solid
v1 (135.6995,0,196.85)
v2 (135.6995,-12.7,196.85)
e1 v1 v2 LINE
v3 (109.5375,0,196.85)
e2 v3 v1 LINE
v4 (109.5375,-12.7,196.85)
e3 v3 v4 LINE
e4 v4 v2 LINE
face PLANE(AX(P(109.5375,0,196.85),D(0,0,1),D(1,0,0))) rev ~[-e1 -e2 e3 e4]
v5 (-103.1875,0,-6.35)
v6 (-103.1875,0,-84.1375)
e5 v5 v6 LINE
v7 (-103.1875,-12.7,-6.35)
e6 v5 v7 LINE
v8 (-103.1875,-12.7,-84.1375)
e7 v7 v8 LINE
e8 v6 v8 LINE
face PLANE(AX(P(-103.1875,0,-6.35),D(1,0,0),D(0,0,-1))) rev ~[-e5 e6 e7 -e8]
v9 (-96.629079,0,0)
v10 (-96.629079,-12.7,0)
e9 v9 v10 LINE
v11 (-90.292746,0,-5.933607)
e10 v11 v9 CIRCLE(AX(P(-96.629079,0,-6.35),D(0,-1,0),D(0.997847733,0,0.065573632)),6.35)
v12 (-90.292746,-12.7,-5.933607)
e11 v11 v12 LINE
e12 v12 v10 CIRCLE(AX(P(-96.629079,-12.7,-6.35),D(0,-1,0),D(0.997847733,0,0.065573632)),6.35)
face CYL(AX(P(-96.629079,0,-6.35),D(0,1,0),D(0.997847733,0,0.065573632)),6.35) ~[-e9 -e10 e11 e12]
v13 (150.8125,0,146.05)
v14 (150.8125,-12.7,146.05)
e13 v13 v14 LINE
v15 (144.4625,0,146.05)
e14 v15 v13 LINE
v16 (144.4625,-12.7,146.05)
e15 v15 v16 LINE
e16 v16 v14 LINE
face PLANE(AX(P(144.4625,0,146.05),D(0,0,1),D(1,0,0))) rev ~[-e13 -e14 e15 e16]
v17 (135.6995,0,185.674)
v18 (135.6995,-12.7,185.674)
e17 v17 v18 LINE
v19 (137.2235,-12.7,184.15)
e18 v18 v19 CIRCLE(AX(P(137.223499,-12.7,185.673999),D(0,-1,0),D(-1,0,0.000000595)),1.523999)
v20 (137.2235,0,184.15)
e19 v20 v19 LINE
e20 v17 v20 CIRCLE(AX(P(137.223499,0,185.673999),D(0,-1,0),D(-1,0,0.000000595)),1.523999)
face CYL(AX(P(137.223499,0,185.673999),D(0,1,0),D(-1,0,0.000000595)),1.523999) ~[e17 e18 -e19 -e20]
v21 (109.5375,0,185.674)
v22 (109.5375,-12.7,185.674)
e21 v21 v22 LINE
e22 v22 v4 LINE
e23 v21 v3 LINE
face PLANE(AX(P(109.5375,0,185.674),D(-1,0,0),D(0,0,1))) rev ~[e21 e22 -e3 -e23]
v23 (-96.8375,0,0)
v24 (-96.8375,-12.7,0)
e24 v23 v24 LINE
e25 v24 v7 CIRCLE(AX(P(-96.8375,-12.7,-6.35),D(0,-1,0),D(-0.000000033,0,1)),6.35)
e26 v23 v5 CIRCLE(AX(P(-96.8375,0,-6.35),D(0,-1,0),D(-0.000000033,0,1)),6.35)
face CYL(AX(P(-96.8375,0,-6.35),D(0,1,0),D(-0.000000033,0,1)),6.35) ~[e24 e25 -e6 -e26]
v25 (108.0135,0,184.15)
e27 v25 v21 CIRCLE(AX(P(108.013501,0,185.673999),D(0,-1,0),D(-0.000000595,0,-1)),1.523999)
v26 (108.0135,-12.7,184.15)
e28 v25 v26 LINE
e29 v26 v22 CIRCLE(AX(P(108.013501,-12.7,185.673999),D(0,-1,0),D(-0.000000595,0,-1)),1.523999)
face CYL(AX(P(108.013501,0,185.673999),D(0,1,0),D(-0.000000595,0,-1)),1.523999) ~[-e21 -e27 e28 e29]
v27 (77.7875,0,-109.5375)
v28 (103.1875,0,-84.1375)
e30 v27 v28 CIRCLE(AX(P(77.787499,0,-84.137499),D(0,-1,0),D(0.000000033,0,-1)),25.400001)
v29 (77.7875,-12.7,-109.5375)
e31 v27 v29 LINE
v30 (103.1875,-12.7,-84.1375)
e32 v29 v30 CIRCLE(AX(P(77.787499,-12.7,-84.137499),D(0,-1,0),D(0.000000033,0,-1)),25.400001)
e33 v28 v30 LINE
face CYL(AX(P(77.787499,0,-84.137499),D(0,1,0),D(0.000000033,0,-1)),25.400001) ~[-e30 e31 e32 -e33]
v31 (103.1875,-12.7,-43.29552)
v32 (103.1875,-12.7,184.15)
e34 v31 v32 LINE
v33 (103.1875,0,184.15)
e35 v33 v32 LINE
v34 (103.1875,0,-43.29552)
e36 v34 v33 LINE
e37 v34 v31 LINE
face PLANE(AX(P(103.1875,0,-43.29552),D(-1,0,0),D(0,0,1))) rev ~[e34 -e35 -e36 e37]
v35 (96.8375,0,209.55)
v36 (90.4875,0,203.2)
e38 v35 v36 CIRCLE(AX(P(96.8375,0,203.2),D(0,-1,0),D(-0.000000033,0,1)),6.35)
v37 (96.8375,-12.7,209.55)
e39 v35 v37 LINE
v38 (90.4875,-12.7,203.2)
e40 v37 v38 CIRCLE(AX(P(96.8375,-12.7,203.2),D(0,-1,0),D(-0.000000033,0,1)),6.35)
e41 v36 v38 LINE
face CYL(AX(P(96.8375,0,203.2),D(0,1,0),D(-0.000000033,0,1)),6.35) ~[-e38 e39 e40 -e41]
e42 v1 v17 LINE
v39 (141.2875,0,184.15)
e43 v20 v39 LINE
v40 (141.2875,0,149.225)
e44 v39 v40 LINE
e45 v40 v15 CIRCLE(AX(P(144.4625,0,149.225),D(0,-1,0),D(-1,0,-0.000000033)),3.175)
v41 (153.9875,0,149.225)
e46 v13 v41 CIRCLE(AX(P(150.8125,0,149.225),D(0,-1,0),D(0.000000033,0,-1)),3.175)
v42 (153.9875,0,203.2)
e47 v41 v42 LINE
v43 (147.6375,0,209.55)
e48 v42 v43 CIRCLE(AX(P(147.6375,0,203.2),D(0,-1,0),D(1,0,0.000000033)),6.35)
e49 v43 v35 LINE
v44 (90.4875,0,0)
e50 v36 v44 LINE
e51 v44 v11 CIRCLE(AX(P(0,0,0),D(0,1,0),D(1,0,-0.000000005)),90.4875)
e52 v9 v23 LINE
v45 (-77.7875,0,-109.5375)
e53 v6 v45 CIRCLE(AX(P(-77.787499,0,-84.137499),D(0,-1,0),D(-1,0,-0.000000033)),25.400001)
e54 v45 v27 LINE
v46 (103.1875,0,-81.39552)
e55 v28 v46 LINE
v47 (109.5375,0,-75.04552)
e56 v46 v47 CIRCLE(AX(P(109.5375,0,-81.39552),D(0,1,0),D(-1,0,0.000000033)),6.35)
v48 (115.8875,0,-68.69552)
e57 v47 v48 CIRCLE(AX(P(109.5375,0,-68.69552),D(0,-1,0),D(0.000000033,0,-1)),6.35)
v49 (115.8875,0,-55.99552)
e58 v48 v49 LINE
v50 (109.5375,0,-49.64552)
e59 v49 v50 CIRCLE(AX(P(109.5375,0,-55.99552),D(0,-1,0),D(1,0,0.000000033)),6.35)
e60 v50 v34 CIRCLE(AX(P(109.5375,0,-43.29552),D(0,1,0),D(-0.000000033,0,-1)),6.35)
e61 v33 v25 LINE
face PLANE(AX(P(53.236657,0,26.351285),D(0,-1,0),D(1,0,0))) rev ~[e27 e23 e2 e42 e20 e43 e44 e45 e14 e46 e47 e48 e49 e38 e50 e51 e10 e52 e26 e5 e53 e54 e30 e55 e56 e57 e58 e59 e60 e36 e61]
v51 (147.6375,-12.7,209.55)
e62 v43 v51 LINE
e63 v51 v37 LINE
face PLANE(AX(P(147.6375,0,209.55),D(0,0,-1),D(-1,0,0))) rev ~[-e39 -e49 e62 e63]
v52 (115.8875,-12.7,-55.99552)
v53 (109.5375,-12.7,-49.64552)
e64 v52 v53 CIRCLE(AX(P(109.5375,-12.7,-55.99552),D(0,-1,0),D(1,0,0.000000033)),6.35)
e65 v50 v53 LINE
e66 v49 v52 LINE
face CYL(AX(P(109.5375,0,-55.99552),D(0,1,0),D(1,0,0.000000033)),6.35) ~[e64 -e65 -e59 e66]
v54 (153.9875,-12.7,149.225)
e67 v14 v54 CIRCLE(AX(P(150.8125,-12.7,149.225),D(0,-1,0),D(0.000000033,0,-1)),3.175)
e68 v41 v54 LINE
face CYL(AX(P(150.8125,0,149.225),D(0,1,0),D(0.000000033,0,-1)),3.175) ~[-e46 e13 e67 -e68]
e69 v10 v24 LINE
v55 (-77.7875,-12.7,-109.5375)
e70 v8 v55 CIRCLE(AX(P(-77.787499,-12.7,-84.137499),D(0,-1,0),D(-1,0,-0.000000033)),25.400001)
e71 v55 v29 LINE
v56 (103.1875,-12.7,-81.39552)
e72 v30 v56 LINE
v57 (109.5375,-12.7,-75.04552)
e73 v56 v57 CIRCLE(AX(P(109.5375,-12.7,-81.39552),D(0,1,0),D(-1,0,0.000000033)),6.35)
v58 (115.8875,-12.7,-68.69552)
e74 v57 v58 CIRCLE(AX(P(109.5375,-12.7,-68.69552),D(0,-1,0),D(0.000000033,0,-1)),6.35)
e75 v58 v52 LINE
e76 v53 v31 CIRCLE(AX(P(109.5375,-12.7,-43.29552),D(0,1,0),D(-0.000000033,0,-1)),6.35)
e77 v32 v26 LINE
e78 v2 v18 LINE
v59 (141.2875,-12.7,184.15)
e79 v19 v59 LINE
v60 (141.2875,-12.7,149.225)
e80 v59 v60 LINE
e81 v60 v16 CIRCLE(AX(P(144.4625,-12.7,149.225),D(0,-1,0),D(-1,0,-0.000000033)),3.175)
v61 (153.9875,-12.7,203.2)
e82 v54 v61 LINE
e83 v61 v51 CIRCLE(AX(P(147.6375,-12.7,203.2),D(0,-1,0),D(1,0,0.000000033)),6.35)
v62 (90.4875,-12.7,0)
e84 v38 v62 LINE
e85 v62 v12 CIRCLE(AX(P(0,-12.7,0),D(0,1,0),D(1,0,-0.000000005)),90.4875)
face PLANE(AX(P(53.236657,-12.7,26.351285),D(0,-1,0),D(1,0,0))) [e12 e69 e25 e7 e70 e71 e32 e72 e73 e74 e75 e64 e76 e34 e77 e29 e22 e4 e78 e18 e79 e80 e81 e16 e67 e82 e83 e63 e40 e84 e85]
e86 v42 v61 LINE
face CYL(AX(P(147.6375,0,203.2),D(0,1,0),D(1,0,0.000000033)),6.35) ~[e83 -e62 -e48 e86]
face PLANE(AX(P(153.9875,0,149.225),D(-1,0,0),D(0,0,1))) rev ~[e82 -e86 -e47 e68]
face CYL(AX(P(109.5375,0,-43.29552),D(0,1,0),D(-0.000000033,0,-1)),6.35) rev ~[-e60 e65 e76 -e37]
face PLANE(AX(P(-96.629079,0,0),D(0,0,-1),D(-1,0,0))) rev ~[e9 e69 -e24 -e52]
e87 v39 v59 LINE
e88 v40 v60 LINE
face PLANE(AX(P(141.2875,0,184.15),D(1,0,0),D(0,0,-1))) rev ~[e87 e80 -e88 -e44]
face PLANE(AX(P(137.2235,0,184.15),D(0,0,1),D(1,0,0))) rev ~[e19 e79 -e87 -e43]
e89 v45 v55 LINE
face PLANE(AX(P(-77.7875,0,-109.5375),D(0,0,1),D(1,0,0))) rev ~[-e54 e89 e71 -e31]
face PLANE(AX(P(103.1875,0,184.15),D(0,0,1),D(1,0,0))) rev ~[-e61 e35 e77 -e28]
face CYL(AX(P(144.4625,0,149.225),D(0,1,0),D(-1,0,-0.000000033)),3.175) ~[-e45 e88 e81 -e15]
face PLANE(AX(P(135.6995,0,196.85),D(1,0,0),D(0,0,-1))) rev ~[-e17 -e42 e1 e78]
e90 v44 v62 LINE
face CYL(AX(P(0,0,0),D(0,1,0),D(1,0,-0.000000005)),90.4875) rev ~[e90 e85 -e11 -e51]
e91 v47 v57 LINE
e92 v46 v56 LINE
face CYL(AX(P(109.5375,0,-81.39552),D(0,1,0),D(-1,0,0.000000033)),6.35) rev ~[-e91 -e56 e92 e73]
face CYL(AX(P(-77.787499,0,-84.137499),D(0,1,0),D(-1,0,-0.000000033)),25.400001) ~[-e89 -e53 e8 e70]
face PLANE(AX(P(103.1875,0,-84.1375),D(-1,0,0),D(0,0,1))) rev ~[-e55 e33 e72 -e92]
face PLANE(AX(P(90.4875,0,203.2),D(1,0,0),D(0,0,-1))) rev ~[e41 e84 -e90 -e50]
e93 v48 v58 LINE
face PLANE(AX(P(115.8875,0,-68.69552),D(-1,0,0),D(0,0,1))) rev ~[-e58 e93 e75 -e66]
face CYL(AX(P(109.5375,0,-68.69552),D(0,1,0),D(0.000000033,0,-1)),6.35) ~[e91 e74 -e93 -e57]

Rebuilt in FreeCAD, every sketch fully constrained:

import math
import FreeCAD as App
import Part
import Sketcher
Q = App.Units.Quantity

doc = App.newDocument("Part")
params = doc.addObject("Spreadsheet::Sheet", "Params")
for row, (alias, value) in enumerate([
    ("sketch1_radius", "1 in"),
    ("sketch1_width", "2 in"),
    ("sketch1_height", "8 in"),
    ("sketch1_radius2", "0.25 in"),
    ("sketch1_radius3", "0.06 in"),
    ("pad1_length", "0.5 in"),
], start=1):
    params.set(f"A{row}", alias)
    params.set(f"B{row}", "=" + value)
    params.setAlias(f"B{row}", alias)

body = doc.addObject("PartDesign::Body", "Body")

# Sketch on XZ plane
sketch1 = body.newObject("Sketcher::SketchObject", "Sketch")
sketch1.AttachmentSupport = (doc.getObject("XZ_Plane"), [""])
sketch1.MapMode = "FlatFace"
sketch1.addGeometry([
    Part.ArcOfCircle(Part.Circle(App.Vector(0, 0, 0), App.Vector(0, 0, 1), 90.49), math.radians(-176), math.radians(0)),  # 0
    Part.ArcOfCircle(Part.Circle(App.Vector(-96.63, -6.35, 0), App.Vector(0, 0, 1), 6.35), math.radians(4), math.radians(90)),  # 1
    Part.LineSegment(App.Vector(-96.63, 0, 0), App.Vector(-96.84, 0, 0)),  # 2
    Part.ArcOfCircle(Part.Circle(App.Vector(-96.84, -6.35, 0), App.Vector(0, 0, 1), 6.35), math.radians(90), math.radians(180)),  # 3
    Part.LineSegment(App.Vector(-103.19, -6.35, 0), App.Vector(-103.19, -84.14, 0)),  # 4
    Part.ArcOfCircle(Part.Circle(App.Vector(-77.79, -84.14, 0), App.Vector(0, 0, 1), 25.4), math.radians(-180), math.radians(-90)),  # 5
    Part.LineSegment(App.Vector(-77.79, -109.54, 0), App.Vector(77.79, -109.54, 0)),  # 6
    Part.ArcOfCircle(Part.Circle(App.Vector(77.79, -84.14, 0), App.Vector(0, 0, 1), 25.4), math.radians(-90), math.radians(0)),  # 7
    Part.LineSegment(App.Vector(103.19, -84.14, 0), App.Vector(103.19, -81.4, 0)),  # 8
    Part.ArcOfCircle(Part.Circle(App.Vector(109.54, -81.4, 0), App.Vector(0, 0, 1), 6.35), math.radians(90), math.radians(180)),  # 9
    Part.ArcOfCircle(Part.Circle(App.Vector(109.54, -68.7, 0), App.Vector(0, 0, 1), 6.35), math.radians(-90), math.radians(0)),  # 10
    Part.LineSegment(App.Vector(115.89, -68.7, 0), App.Vector(115.89, -56, 0)),  # 11
    Part.ArcOfCircle(Part.Circle(App.Vector(109.54, -56, 0), App.Vector(0, 0, 1), 6.35), math.radians(0), math.radians(90)),  # 12
    Part.ArcOfCircle(Part.Circle(App.Vector(109.54, -43.3, 0), App.Vector(0, 0, 1), 6.35), math.radians(-180), math.radians(-90)),  # 13
    Part.LineSegment(App.Vector(103.19, -43.3, 0), App.Vector(103.19, 184.15, 0)),  # 14
    Part.LineSegment(App.Vector(103.19, 184.15, 0), App.Vector(108.01, 184.15, 0)),  # 15
    Part.ArcOfCircle(Part.Circle(App.Vector(108.01, 185.67, 0), App.Vector(0, 0, 1), 1.52), math.radians(-90), math.radians(0)),  # 16
    Part.LineSegment(App.Vector(109.54, 185.67, 0), App.Vector(109.54, 196.85, 0)),  # 17
    Part.LineSegment(App.Vector(109.54, 196.85, 0), App.Vector(135.7, 196.85, 0)),  # 18
    Part.LineSegment(App.Vector(135.7, 196.85, 0), App.Vector(135.7, 185.67, 0)),  # 19
    Part.ArcOfCircle(Part.Circle(App.Vector(137.22, 185.67, 0), App.Vector(0, 0, 1), 1.52), math.radians(180), math.radians(270)),  # 20
    Part.LineSegment(App.Vector(137.22, 184.15, 0), App.Vector(141.29, 184.15, 0)),  # 21
    Part.LineSegment(App.Vector(141.29, 184.15, 0), App.Vector(141.29, 149.22, 0)),  # 22
    Part.ArcOfCircle(Part.Circle(App.Vector(144.46, 149.23, 0), App.Vector(0, 0, 1), 3.18), math.radians(-180), math.radians(-90)),  # 23
    Part.LineSegment(App.Vector(144.46, 146.05, 0), App.Vector(150.81, 146.05, 0)),  # 24
    Part.ArcOfCircle(Part.Circle(App.Vector(150.81, 149.23, 0), App.Vector(0, 0, 1), 3.18), math.radians(-90), math.radians(0)),  # 25
    Part.LineSegment(App.Vector(153.99, 149.22, 0), App.Vector(153.99, 203.2, 0)),  # 26
    Part.ArcOfCircle(Part.Circle(App.Vector(147.64, 203.2, 0), App.Vector(0, 0, 1), 6.35), math.radians(0), math.radians(90)),  # 27
    Part.LineSegment(App.Vector(147.64, 209.55, 0), App.Vector(96.84, 209.55, 0)),  # 28
    Part.ArcOfCircle(Part.Circle(App.Vector(96.84, 203.2, 0), App.Vector(0, 0, 1), 6.35), math.radians(90), math.radians(180)),  # 29
    Part.LineSegment(App.Vector(90.49, 203.2, 0), App.Vector(90.49, 0, 0)),  # 30
], False)
sketch1.addConstraint([
    Sketcher.Constraint("Tangent", 0, 1, 1, 1),
    Sketcher.Constraint("Tangent", 1, 2, 2, 1),
    Sketcher.Constraint("Tangent", 2, 2, 3, 1),
    Sketcher.Constraint("Tangent", 3, 2, 4, 1),
    Sketcher.Constraint("Tangent", 4, 2, 5, 1),
    Sketcher.Constraint("Tangent", 5, 2, 6, 1),
    Sketcher.Constraint("Tangent", 6, 2, 7, 1),
    Sketcher.Constraint("Tangent", 7, 2, 8, 1),
    Sketcher.Constraint("Tangent", 8, 2, 9, 2),
    Sketcher.Constraint("Tangent", 9, 1, 10, 1),
    Sketcher.Constraint("Tangent", 10, 2, 11, 1),
    Sketcher.Constraint("Tangent", 11, 2, 12, 1),
    Sketcher.Constraint("Tangent", 12, 2, 13, 2),
    Sketcher.Constraint("Tangent", 13, 1, 14, 1),
    Sketcher.Constraint("Coincident", 14, 2, 15, 1),
    Sketcher.Constraint("Tangent", 15, 2, 16, 1),
    Sketcher.Constraint("Tangent", 16, 2, 17, 1),
    Sketcher.Constraint("Coincident", 17, 2, 18, 1),
    Sketcher.Constraint("Coincident", 18, 2, 19, 1),
    Sketcher.Constraint("Tangent", 19, 2, 20, 1),
    Sketcher.Constraint("Tangent", 20, 2, 21, 1),
    Sketcher.Constraint("Coincident", 21, 2, 22, 1),
    Sketcher.Constraint("Tangent", 22, 2, 23, 1),
    Sketcher.Constraint("Tangent", 23, 2, 24, 1),
    Sketcher.Constraint("Tangent", 24, 2, 25, 1),
    Sketcher.Constraint("Tangent", 25, 2, 26, 1),
    Sketcher.Constraint("Tangent", 26, 2, 27, 1),
    Sketcher.Constraint("Tangent", 27, 2, 28, 1),
    Sketcher.Constraint("Tangent", 28, 2, 29, 1),
    Sketcher.Constraint("Tangent", 29, 2, 30, 1),
    Sketcher.Constraint("Tangent", 30, 2, 0, 2),
    Sketcher.Constraint("Horizontal", 2),
    Sketcher.Constraint("Vertical", 4),
    Sketcher.Constraint("Horizontal", 6),
    Sketcher.Constraint("Vertical", 8),
    Sketcher.Constraint("Vertical", 11),
    Sketcher.Constraint("Vertical", 14),
    Sketcher.Constraint("Horizontal", 15),
    Sketcher.Constraint("Vertical", 17),
    Sketcher.Constraint("Horizontal", 18),
    Sketcher.Constraint("Vertical", 19),
    Sketcher.Constraint("Horizontal", 21),
    Sketcher.Constraint("Vertical", 22),
    Sketcher.Constraint("Horizontal", 24),
    Sketcher.Constraint("Vertical", 26),
    Sketcher.Constraint("Horizontal", 28),
    Sketcher.Constraint("Vertical", 30),
    Sketcher.Constraint("Coincident", 0, 3, -1, 1),
    Sketcher.Constraint("Equal", 1, 3),
    Sketcher.Constraint("Equal", 5, 7),
    Sketcher.Constraint("Equal", 3, 9),
    Sketcher.Constraint("Equal", 9, 10),
    Sketcher.Constraint("Equal", 10, 12),
    Sketcher.Constraint("Equal", 12, 13),
    Sketcher.Constraint("Equal", 16, 20),
    Sketcher.Constraint("Equal", 23, 25),
    Sketcher.Constraint("Equal", 13, 27),
    Sketcher.Constraint("Equal", 27, 29),
    Sketcher.Constraint("PointOnObject", 1, 2, -1),
    Sketcher.Constraint("Horizontal", 16, 3, 20, 3),
    Sketcher.Constraint("Vertical", 9, 3, 10, 3),
    Sketcher.Constraint("Vertical", 12, 3, 13, 3),
    Sketcher.Constraint("Vertical", 12, 2, 16, 2),
    Sketcher.Constraint("Radius", 5, Q("1 in")),
    Sketcher.Constraint("DistanceX", 28, 2, 28, 1, Q("2 in")),
    Sketcher.Constraint("DistanceY", 30, 2, 30, 1, Q("8 in")),
    Sketcher.Constraint("Radius", 1, Q("0.25 in")),
    Sketcher.Constraint("Radius", 16, Q("0.06 in")),
    Sketcher.Constraint("DistanceY", 11, 1, 11, 2, Q("0.5 in")),
    Sketcher.Constraint("Radius", 0, Q("3.5625 in")),
    Sketcher.Constraint("Radius", 23, Q("0.125 in")),
    Sketcher.Constraint("DistanceY", 21, 2, 27, 2, Q("1 in")),
    Sketcher.Constraint("DistanceX", 30, 2, 11, 2, Q("1 in")),
    Sketcher.Constraint("DistanceX", 18, 1, 18, 2, Q("1.03 in")),
    Sketcher.Constraint("DistanceX", 21, 1, 21, 2, Q("0.16 in")),
    Sketcher.Constraint("DistanceY", 17, 1, 17, 2, Q("0.44 in")),
    Sketcher.Constraint("DistanceY", 23, 2, 21, 2, Q("1.5 in")),
    Sketcher.Constraint("DistanceX", 6, 1, 6, 2, Q("6.125 in")),
    Sketcher.Constraint("DistanceY", 4, 2, 4, 1, Q("3.0625 in")),
    Sketcher.Constraint("DistanceY", 8, 1, 8, 2, Q("2.74198 mm")),
])
sketch1.setExpression("Constraints[63]", "Params.sketch1_radius")
sketch1.setExpression("Constraints[64]", "Params.sketch1_width")
sketch1.setExpression("Constraints[65]", "Params.sketch1_height")
sketch1.setExpression("Constraints[66]", "Params.sketch1_radius2")
sketch1.setExpression("Constraints[67]", "Params.sketch1_radius3")
pad1 = body.newObject("PartDesign::Pad", "Pad")
pad1.Profile = sketch1
pad1.setExpression("Length", "Params.pad1_length")

doc.recompute()
